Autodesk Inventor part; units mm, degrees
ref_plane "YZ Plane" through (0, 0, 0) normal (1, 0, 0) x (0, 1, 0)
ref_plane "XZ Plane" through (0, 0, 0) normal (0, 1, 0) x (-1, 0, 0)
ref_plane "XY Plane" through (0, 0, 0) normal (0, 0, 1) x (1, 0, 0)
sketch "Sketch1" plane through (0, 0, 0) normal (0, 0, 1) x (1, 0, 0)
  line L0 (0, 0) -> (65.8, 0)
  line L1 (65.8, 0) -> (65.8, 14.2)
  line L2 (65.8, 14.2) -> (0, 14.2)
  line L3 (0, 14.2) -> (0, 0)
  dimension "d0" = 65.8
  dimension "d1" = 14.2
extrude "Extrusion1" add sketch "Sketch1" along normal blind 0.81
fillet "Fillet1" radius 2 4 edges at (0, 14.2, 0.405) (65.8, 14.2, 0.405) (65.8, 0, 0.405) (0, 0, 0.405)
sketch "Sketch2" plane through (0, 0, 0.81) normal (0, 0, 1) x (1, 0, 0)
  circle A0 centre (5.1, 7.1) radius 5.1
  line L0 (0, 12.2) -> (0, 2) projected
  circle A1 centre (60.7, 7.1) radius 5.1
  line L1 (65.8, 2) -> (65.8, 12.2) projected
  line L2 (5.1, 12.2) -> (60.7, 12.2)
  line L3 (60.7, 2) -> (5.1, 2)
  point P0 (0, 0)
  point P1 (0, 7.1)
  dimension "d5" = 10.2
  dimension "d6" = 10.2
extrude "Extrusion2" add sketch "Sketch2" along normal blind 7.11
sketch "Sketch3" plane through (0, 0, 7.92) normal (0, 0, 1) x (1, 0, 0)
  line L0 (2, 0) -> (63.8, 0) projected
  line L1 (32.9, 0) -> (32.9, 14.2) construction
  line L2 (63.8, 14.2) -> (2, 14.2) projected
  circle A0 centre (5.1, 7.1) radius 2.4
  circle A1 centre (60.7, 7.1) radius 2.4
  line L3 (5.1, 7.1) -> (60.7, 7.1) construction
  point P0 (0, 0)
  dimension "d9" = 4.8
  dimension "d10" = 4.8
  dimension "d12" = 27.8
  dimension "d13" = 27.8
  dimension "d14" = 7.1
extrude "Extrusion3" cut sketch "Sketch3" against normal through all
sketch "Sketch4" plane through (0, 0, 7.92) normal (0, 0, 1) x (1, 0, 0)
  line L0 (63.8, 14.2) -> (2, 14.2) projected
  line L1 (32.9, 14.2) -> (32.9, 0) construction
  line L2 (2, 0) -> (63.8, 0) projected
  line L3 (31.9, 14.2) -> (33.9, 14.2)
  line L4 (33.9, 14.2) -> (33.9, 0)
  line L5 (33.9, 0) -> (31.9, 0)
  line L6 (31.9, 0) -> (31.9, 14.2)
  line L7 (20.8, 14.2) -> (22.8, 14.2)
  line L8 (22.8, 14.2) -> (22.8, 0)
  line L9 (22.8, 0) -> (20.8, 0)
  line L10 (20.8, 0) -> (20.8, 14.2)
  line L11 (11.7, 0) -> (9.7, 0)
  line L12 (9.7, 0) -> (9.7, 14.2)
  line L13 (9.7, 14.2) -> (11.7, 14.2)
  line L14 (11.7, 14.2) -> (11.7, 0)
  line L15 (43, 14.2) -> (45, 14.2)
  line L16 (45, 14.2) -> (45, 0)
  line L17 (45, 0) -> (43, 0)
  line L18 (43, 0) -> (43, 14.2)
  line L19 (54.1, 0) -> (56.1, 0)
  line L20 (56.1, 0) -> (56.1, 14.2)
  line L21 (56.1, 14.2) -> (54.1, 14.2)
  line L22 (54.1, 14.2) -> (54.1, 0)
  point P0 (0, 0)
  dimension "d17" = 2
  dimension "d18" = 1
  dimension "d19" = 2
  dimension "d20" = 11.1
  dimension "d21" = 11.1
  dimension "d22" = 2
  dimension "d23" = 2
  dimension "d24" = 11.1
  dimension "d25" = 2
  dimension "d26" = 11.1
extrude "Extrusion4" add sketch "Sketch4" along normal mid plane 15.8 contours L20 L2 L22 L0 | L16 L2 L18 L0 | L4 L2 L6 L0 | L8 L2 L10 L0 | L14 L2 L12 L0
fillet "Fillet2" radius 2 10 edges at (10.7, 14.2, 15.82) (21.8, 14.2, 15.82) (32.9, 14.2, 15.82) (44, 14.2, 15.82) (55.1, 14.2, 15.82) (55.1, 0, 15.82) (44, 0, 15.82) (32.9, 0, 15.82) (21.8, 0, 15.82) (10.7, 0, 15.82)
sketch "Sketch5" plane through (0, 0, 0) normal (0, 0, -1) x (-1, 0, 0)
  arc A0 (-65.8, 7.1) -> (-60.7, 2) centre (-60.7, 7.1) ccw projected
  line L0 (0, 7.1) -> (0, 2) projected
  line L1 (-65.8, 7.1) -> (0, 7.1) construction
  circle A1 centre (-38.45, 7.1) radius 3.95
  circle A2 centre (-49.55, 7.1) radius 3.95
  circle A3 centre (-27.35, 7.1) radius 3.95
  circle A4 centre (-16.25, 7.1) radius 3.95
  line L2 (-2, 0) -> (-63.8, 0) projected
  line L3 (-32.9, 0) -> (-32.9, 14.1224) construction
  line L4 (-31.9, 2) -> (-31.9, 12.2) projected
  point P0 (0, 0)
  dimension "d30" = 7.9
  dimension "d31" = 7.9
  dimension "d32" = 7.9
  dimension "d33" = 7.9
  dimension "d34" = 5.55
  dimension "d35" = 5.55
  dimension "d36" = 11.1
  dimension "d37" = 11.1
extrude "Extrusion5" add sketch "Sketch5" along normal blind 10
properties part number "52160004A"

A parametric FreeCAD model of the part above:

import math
import FreeCAD as App
import Part
import Sketcher
from FreeCAD import Vector


def edges_at(feature, points):
    """Names of the edges that pass closest to the given points."""
    edges = feature.Shape.Edges
    near = lambda p: min(range(len(edges)), key=lambda i: edges[i].distToShape(Part.Vertex(*p))[0])
    return sorted({f"Edge{near(p) + 1}" for p in points})


def add_polygon(sketch, points):
    """Adds a closed chain of lines whose ends are joined by coincident constraints."""
    first, n = sketch.GeometryCount, len(points)
    for a, b in zip(points, points[1:] + points[:1]):
        sketch.addGeometry(Part.LineSegment(App.Vector(*a, 0), App.Vector(*b, 0)), False)
    for i in range(n):
        sketch.addConstraint(Sketcher.Constraint("Coincident", first + i, 2, first + (i + 1) % n, 1))

doc = App.newDocument("Part")
body = doc.addObject("PartDesign::Body", "Body")

# Sketch on XY plane
sketch1 = body.newObject("Sketcher::SketchObject", "Sketch")
sketch1.AttachmentSupport = (doc.getObject("XY_Plane"), [""])
sketch1.MapMode = "FlatFace"
add_polygon(sketch1, [(0, 14), (0, 0), (66, 0), (66, 14)])  # lines 0-3
sketch1.addConstraint(Sketcher.Constraint("Vertical", 0))
sketch1.addConstraint(Sketcher.Constraint("Horizontal", 1))
sketch1.addConstraint(Sketcher.Constraint("Vertical", 2))
sketch1.addConstraint(Sketcher.Constraint("Horizontal", 3))
sketch1.addConstraint(Sketcher.Constraint("Coincident", 0, 2, -1, 1))
sketch1.addConstraint(Sketcher.Constraint("DistanceX", 1, 1, 1, 2, 65.8))
sketch1.addConstraint(Sketcher.Constraint("DistanceY", 0, 2, 0, 1, 14.2))
pad1 = body.newObject("PartDesign::Pad", "Pad")
pad1.Profile = sketch1
pad1.Length = 0.81
doc.recompute()

fillet = body.newObject("PartDesign::Fillet", "Fillet")
fillet.Base = (pad1, edges_at(pad1, [
    (0, 14.2, 0.405),
    (65.8, 14.2, 0.405),
    (65.8, 0, 0.405),
    (0, 0, 0.405),
]))
fillet.Radius = 2

# Sketch on XY plane
sketch2 = body.newObject("Sketcher::SketchObject", "Sketch001")
sketch2.AttachmentSupport = (doc.getObject("XY_Plane"), [""])
sketch2.MapMode = "FlatFace"
sketch2.AttachmentOffset = App.Placement(Vector(0, 0, 0.81), App.Rotation())
sketch2.addGeometry(Part.LineSegment(Vector(5, 2, 0), Vector(61, 2, 0)), False)
sketch2.addGeometry(Part.ArcOfCircle(Part.Circle(Vector(61, 7, 0), Vector(0, 0, 1), 5), math.radians(-90), math.radians(90)), False)
sketch2.addGeometry(Part.LineSegment(Vector(61, 12, 0), Vector(5, 12, 0)), False)
sketch2.addGeometry(Part.ArcOfCircle(Part.Circle(Vector(5, 7, 0), Vector(0, 0, 1), 5), math.radians(90), math.radians(270)), False)
sketch2.addConstraint(Sketcher.Constraint("Tangent", 0, 2, 1, 1))
sketch2.addConstraint(Sketcher.Constraint("Tangent", 1, 2, 2, 1))
sketch2.addConstraint(Sketcher.Constraint("Tangent", 2, 2, 3, 1))
sketch2.addConstraint(Sketcher.Constraint("Tangent", 3, 2, 0, 1))
sketch2.addConstraint(Sketcher.Constraint("Horizontal", 0))
sketch2.addConstraint(Sketcher.Constraint("Horizontal", 2))
sketch2.addConstraint(Sketcher.Constraint("Radius", 1, 5.1))
sketch2.addConstraint(Sketcher.Constraint("DistanceX", 0, 1, 0, 2, 55.6))
sketch2.addConstraint(Sketcher.Constraint("DistanceY", -1, 1, 0, 2, 2.0))
sketch2.addConstraint(Sketcher.Constraint("DistanceX", -1, 1, 1, 3, 60.7))
pad2 = body.newObject("PartDesign::Pad", "Pad001")
pad2.Profile = sketch2
pad2.Length = 7.11

# Sketch on XY plane
sketch3 = body.newObject("Sketcher::SketchObject", "Sketch002")
sketch3.AttachmentSupport = (doc.getObject("XY_Plane"), [""])
sketch3.MapMode = "FlatFace"
sketch3.AttachmentOffset = App.Placement(Vector(0, 0, 7.92), App.Rotation())
sketch3.addGeometry(Part.Circle(Vector(5.1, 7.1, 0), Vector(0, 0, 1), 2.4), False)
sketch3.addGeometry(Part.Circle(Vector(60.7, 7.1, 0), Vector(0, 0, 1), 2.4), False)
sketch3.addConstraint(Sketcher.Constraint("Equal", 0, 1))
sketch3.addConstraint(Sketcher.Constraint("Horizontal", 0, 3, 1, 3))
sketch3.addConstraint(Sketcher.Constraint("Diameter", 0, 4.8))
sketch3.addConstraint(Sketcher.Constraint("DistanceY", -1, 1, 0, 3, 7.1))
sketch3.addConstraint(Sketcher.Constraint("DistanceX", -1, 1, 0, 3, 5.1))
sketch3.addConstraint(Sketcher.Constraint("DistanceX", -1, 1, 1, 3, 60.7))
pocket1 = body.newObject("PartDesign::Pocket", "Pocket")
pocket1.Profile = sketch3
pocket1.Type = "ThroughAll"

# Sketch on XY plane
sketch4 = body.newObject("Sketcher::SketchObject", "Sketch003")
sketch4.AttachmentSupport = (doc.getObject("XY_Plane"), [""])
sketch4.MapMode = "FlatFace"
sketch4.AttachmentOffset = App.Placement(Vector(0, 0, 7.92), App.Rotation())
add_polygon(sketch4, [(56.1, 0), (56.1, 14.2), (54.1, 14.2), (54.1, 0)])  # lines 0-3
add_polygon(sketch4, [(45, 0), (45, 14.2), (43, 14.2), (43, 0)])  # lines 4-7
add_polygon(sketch4, [(33.9, 0), (33.9, 14.2), (31.9, 14.2), (31.9, 0)])  # lines 8-11
add_polygon(sketch4, [(22.8, 0), (22.8, 14.2), (20.8, 14.2), (20.8, 0)])  # lines 12-15
add_polygon(sketch4, [(11.7, 0), (11.7, 14.2), (9.7, 14.2), (9.7, 0)])  # lines 16-19
sketch4.addConstraint(Sketcher.Constraint("Vertical", 0))
sketch4.addConstraint(Sketcher.Constraint("Horizontal", 1))
sketch4.addConstraint(Sketcher.Constraint("Vertical", 2))
sketch4.addConstraint(Sketcher.Constraint("Horizontal", 3))
sketch4.addConstraint(Sketcher.Constraint("Vertical", 4))
sketch4.addConstraint(Sketcher.Constraint("Horizontal", 5))
sketch4.addConstraint(Sketcher.Constraint("Vertical", 6))
sketch4.addConstraint(Sketcher.Constraint("Horizontal", 7))
sketch4.addConstraint(Sketcher.Constraint("Vertical", 8))
sketch4.addConstraint(Sketcher.Constraint("Horizontal", 9))
sketch4.addConstraint(Sketcher.Constraint("Vertical", 10))
sketch4.addConstraint(Sketcher.Constraint("Horizontal", 11))
sketch4.addConstraint(Sketcher.Constraint("Vertical", 12))
sketch4.addConstraint(Sketcher.Constraint("Horizontal", 13))
sketch4.addConstraint(Sketcher.Constraint("Vertical", 14))
sketch4.addConstraint(Sketcher.Constraint("Horizontal", 15))
sketch4.addConstraint(Sketcher.Constraint("Vertical", 16))
sketch4.addConstraint(Sketcher.Constraint("Horizontal", 17))
sketch4.addConstraint(Sketcher.Constraint("Vertical", 18))
sketch4.addConstraint(Sketcher.Constraint("Horizontal", 19))
sketch4.addConstraint(Sketcher.Constraint("PointOnObject", 2, 2, -1))
sketch4.addConstraint(Sketcher.Constraint("PointOnObject", 6, 2, -1))
sketch4.addConstraint(Sketcher.Constraint("PointOnObject", 10, 2, -1))
sketch4.addConstraint(Sketcher.Constraint("PointOnObject", 14, 2, -1))
sketch4.addConstraint(Sketcher.Constraint("PointOnObject", 18, 2, -1))
sketch4.addConstraint(Sketcher.Constraint("Horizontal", 1, 2, 4, 2))
sketch4.addConstraint(Sketcher.Constraint("Horizontal", 5, 2, 8, 2))
sketch4.addConstraint(Sketcher.Constraint("Horizontal", 9, 2, 12, 2))
sketch4.addConstraint(Sketcher.Constraint("Horizontal", 13, 2, 16, 2))
sketch4.addConstraint(Sketcher.Constraint("Equal", 3, 5))
sketch4.addConstraint(Sketcher.Constraint("Equal", 7, 9))
sketch4.addConstraint(Sketcher.Constraint("Equal", 11, 13))
sketch4.addConstraint(Sketcher.Constraint("Equal", 15, 17))
sketch4.addConstraint(Sketcher.Constraint("DistanceX", 1, 2, 1, 1, 2.0))
sketch4.addConstraint(Sketcher.Constraint("DistanceX", 4, 2, 0, 2, 11.1))
sketch4.addConstraint(Sketcher.Constraint("DistanceX", 8, 2, 4, 2, 11.1))
sketch4.addConstraint(Sketcher.Constraint("DistanceX", 12, 2, 8, 2, 11.1))
sketch4.addConstraint(Sketcher.Constraint("DistanceX", 16, 2, 12, 2, 11.1))
sketch4.addConstraint(Sketcher.Constraint("DistanceY", 0, 1, 0, 2, 14.2))
sketch4.addConstraint(Sketcher.Constraint("DistanceX", -1, 1, 4, 2, 45.0))
pad3 = body.newObject("PartDesign::Pad", "Pad002")
pad3.Profile = sketch4
pad3.Length = 15.8
pad3.Midplane = True
doc.recompute()

fillet2 = body.newObject("PartDesign::Fillet", "Fillet001")
fillet2.Base = (pad3, edges_at(pad3, [
    (10.7, 14.2, 15.82),
    (21.8, 14.2, 15.82),
    (32.9, 14.2, 15.82),
    (44, 14.2, 15.82),
    (55.1, 14.2, 15.82),
    (55.1, 0, 15.82),
    (44, 0, 15.82),
    (32.9, 0, 15.82),
    (21.8, 0, 15.82),
    (10.7, 0, 15.82),
]))
fillet2.Radius = 2

# Sketch on XY plane
sketch5 = body.newObject("Sketcher::SketchObject", "Sketch004")
sketch5.AttachmentSupport = (doc.getObject("XY_Plane"), [""])
sketch5.MapMode = "FlatFace"
sketch5.addGeometry(Part.Circle(Vector(38.5, 7.1, 0), Vector(0, 0, 1), 4), False)
sketch5.addGeometry(Part.Circle(Vector(49.5, 7.1, 0), Vector(0, 0, 1), 4), False)
sketch5.addGeometry(Part.Circle(Vector(27.4, 7.1, 0), Vector(0, 0, 1), 4), False)
sketch5.addGeometry(Part.Circle(Vector(16.2, 7.1, 0), Vector(0, 0, 1), 4), False)
sketch5.addConstraint(Sketcher.Constraint("Equal", 0, 1))
sketch5.addConstraint(Sketcher.Constraint("Equal", 1, 2))
sketch5.addConstraint(Sketcher.Constraint("Equal", 2, 3))
sketch5.addConstraint(Sketcher.Constraint("Horizontal", 0, 3, 1, 3))
sketch5.addConstraint(Sketcher.Constraint("Horizontal", 1, 3, 2, 3))
sketch5.addConstraint(Sketcher.Constraint("Horizontal", 2, 3, 3, 3))
sketch5.addConstraint(Sketcher.Constraint("Diameter", 0, 7.9))
sketch5.addConstraint(Sketcher.Constraint("DistanceX", 0, 3, 1, 3, 11.1))
sketch5.addConstraint(Sketcher.Constraint("DistanceX", 2, 3, 0, 3, 11.1))
sketch5.addConstraint(Sketcher.Constraint("DistanceX", 3, 3, 2, 3, 11.1))
sketch5.addConstraint(Sketcher.Constraint("DistanceY", -1, 1, 0, 3, 7.1))
sketch5.addConstraint(Sketcher.Constraint("DistanceX", -1, 1, 0, 3, 38.45))
pad4 = body.newObject("PartDesign::Pad", "Pad003")
pad4.Profile = sketch5
pad4.Length = 10
pad4.Reversed = True

doc.recompute()
